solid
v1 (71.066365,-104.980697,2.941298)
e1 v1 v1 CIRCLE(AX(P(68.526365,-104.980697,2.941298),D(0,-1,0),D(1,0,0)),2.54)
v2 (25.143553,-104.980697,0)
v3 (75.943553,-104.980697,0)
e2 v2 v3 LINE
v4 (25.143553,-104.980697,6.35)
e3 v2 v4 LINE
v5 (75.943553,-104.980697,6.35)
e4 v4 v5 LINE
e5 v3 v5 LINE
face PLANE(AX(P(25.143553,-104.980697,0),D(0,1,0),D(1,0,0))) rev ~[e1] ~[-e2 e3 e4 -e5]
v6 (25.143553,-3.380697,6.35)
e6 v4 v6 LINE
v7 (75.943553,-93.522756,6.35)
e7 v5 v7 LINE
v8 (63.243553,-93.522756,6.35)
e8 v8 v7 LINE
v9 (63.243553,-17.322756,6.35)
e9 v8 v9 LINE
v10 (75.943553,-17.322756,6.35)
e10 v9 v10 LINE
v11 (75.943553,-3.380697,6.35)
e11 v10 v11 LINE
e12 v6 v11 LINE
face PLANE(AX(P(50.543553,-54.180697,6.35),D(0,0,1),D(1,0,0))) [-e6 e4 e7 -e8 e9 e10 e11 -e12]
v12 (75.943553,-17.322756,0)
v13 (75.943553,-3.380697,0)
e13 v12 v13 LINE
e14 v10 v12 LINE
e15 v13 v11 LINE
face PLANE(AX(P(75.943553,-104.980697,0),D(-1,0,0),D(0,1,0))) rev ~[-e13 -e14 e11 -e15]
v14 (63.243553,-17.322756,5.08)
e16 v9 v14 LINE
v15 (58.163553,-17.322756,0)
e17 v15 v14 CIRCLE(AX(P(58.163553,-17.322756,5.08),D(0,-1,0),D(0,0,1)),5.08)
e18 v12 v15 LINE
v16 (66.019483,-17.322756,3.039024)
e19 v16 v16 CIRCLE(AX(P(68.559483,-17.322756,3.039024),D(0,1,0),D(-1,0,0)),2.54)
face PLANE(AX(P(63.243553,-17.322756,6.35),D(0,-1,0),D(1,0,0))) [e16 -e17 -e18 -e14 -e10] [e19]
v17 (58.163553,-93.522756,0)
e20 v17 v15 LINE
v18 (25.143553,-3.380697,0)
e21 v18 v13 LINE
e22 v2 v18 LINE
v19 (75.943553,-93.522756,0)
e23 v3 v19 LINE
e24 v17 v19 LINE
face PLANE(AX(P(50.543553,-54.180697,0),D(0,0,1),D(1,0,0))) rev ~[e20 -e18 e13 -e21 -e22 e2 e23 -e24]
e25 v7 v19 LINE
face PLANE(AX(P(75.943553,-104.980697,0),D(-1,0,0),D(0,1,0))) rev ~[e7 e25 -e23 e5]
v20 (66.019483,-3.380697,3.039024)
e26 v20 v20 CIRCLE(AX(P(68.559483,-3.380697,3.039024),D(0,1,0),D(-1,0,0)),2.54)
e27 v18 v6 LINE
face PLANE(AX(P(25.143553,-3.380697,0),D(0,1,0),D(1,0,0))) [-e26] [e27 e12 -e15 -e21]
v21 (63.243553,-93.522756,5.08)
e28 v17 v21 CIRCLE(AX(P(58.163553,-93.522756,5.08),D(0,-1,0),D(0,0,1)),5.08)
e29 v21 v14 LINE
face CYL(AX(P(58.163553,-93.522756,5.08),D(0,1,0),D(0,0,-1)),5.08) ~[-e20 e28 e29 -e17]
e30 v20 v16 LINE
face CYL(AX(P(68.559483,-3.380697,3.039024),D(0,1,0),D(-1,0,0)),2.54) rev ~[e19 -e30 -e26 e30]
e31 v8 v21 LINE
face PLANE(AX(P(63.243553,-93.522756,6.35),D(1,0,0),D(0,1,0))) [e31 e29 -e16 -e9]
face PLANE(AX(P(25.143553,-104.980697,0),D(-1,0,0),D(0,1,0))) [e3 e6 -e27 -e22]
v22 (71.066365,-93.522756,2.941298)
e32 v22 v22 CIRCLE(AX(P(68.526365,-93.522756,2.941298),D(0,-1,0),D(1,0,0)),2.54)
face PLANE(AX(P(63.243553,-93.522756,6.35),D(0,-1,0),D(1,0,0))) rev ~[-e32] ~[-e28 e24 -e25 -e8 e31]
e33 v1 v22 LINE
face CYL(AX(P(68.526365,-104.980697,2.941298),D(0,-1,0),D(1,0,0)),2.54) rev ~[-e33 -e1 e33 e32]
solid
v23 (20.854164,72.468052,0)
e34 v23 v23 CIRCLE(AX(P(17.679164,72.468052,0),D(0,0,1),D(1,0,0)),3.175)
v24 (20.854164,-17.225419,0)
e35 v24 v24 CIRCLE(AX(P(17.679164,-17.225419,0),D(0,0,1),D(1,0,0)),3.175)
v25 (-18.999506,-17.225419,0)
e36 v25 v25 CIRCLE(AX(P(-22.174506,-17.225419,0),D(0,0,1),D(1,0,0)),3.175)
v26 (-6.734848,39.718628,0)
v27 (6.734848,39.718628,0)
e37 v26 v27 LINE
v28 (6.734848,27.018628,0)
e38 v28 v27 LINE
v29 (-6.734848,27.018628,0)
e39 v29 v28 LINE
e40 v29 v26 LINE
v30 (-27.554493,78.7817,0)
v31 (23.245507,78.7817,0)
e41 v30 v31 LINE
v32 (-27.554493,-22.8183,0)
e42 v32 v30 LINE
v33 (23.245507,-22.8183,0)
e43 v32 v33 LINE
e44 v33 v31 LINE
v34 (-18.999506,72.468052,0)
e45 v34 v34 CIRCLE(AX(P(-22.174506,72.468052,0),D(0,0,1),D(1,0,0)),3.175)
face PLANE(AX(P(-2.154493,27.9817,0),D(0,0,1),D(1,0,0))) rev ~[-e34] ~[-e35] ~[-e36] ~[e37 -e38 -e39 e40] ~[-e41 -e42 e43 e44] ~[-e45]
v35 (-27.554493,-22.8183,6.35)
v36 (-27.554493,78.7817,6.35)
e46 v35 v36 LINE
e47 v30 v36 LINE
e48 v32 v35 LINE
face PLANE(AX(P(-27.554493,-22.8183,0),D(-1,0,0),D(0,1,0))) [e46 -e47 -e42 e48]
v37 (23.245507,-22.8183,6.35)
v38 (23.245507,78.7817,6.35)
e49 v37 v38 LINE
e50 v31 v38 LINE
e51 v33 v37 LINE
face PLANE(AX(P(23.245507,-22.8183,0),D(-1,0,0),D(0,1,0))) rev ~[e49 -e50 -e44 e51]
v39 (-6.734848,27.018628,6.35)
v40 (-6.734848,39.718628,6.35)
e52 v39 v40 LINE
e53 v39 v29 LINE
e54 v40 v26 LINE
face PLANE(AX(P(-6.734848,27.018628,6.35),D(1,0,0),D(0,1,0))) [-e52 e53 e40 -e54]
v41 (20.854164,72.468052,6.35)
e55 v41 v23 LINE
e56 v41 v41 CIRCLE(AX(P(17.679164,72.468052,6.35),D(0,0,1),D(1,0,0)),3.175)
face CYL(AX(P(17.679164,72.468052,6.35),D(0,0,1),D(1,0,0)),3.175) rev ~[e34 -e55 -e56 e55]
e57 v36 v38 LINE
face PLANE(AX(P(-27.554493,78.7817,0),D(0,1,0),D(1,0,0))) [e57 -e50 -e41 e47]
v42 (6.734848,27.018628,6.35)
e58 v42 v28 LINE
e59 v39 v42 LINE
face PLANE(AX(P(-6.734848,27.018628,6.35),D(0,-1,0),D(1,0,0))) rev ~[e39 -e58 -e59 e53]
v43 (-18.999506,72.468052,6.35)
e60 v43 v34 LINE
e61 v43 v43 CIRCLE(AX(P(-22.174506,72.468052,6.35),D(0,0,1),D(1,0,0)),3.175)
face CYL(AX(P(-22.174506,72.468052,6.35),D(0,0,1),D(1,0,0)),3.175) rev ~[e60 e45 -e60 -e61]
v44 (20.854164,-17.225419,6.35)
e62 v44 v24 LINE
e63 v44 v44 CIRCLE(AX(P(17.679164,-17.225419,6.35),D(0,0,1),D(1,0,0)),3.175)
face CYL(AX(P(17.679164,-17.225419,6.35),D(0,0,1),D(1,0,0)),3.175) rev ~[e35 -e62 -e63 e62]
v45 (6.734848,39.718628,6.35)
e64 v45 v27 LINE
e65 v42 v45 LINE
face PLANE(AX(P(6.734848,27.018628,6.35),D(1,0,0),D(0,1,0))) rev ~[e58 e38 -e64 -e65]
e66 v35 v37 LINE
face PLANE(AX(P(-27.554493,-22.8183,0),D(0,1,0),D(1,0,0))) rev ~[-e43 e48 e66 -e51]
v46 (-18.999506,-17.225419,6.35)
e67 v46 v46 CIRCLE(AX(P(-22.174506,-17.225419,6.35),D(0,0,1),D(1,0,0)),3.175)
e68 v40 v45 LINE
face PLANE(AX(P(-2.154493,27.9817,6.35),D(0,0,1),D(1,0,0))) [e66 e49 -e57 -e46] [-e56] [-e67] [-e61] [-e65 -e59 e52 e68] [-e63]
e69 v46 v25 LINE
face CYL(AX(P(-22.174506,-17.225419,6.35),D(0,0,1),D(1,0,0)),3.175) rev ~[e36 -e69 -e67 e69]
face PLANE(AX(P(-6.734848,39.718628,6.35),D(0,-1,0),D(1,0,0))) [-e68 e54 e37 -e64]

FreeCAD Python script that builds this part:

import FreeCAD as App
import Part
import Sketcher
from FreeCAD import Vector
Q = App.Units.Quantity


def edges_at(feature, points):
    """Names of the edges that pass closest to the given points."""
    edges = feature.Shape.Edges
    near = lambda p: min(range(len(edges)), key=lambda i: edges[i].distToShape(Part.Vertex(*p))[0])
    return sorted({f"Edge{near(p) + 1}" for p in points})


def add_polygon(sketch, points):
    """Adds a closed chain of lines whose ends are joined by coincident constraints."""
    first, n = sketch.GeometryCount, len(points)
    for a, b in zip(points, points[1:] + points[:1]):
        sketch.addGeometry(Part.LineSegment(App.Vector(*a, 0), App.Vector(*b, 0)), False)
    for i in range(n):
        sketch.addConstraint(Sketcher.Constraint("Coincident", first + i, 2, first + (i + 1) % n, 1))

doc = App.newDocument("Part")
body = doc.addObject("PartDesign::Body", "Body")

# Sketch on XY plane
sketch1 = body.newObject("Sketcher::SketchObject", "Sketch")
sketch1.AttachmentSupport = (doc.getObject("XY_Plane"), [""])
sketch1.MapMode = "FlatFace"
add_polygon(sketch1, [(-27.554493, 78.7817), (-27.554493, -22.8183), (23.245507, -22.8183), (23.245507, 78.7817)])  # lines 0-3
sketch1.addConstraint([
    Sketcher.Constraint("Vertical", 0),
    Sketcher.Constraint("Horizontal", 1),
    Sketcher.Constraint("Vertical", 2),
    Sketcher.Constraint("Horizontal", 3),
    Sketcher.Constraint("DistanceX", 1, 1, 1, 2, Q("2 in")),
    Sketcher.Constraint("DistanceY", 0, 2, 0, 1, Q("4 in")),
    Sketcher.Constraint("DistanceY", 0, 2, -1, 1, Q("22.8183 mm")),
    Sketcher.Constraint("DistanceX", 0, 2, -1, 1, Q("27.554493 mm")),
])
pad1 = body.newObject("PartDesign::Pad", "Pad")
pad1.Profile = sketch1
pad1.Length = Q("0.25 in")

# Sketch on XY plane
sketch2 = body.newObject("Sketcher::SketchObject", "Sketch001")
sketch2.AttachmentSupport = (doc.getObject("XY_Plane"), [""])
sketch2.MapMode = "FlatFace"
sketch2.AttachmentOffset = App.Placement(Vector(0, 0, 0.25 * 25.4), App.Rotation())
sketch2.addGeometry([
    Part.Circle(Vector(-22.174506, 72.468052, 0), Vector(0, 0, 1), 3.175),
    Part.Circle(Vector(-22.174506, -17.225419, 0), Vector(0, 0, 1), 3.175),
    Part.Circle(Vector(17.679164, 72.468052, 0), Vector(0, 0, 1), 3.175),
    Part.Circle(Vector(17.679164, -17.225419, 0), Vector(0, 0, 1), 3.175),
], False)
sketch2.addConstraint([
    Sketcher.Constraint("Equal", 0, 1),
    Sketcher.Constraint("Equal", 1, 2),
    Sketcher.Constraint("Equal", 2, 3),
    Sketcher.Constraint("Horizontal", 0, 3, 2, 3),
    Sketcher.Constraint("Horizontal", 1, 3, 3, 3),
    Sketcher.Constraint("Vertical", 0, 3, 1, 3),
    Sketcher.Constraint("Vertical", 2, 3, 3, 3),
    Sketcher.Constraint("Diameter", 0, Q("0.25 in")),
    Sketcher.Constraint("DistanceY", -1, 1, 0, 3, Q("72.468052 mm")),
    Sketcher.Constraint("DistanceY", 1, 3, -1, 1, Q("17.225419 mm")),
    Sketcher.Constraint("DistanceX", 0, 3, 2, 3, Q("39.85367 mm")),
    Sketcher.Constraint("DistanceX", 0, 3, -1, 1, Q("22.174506 mm")),
])
pocket1 = body.newObject("PartDesign::Pocket", "Pocket")
pocket1.Profile = sketch2
pocket1.Length = Q("1 in")

# Sketch on XY plane
sketch3 = body.newObject("Sketcher::SketchObject", "Sketch002")
sketch3.AttachmentSupport = (doc.getObject("XY_Plane"), [""])
sketch3.MapMode = "FlatFace"
sketch3.AttachmentOffset = App.Placement(Vector(0, 0, 0.25 * 25.4), App.Rotation())
add_polygon(sketch3, [(-6.734848, 39.718628), (-6.734848, 27.018628), (6.734848, 27.018628), (6.734848, 39.718628)])  # lines 0-3
sketch3.addConstraint([
    Sketcher.Constraint("Vertical", 0),
    Sketcher.Constraint("Horizontal", 1),
    Sketcher.Constraint("Vertical", 2),
    Sketcher.Constraint("Horizontal", 3),
    Sketcher.Constraint("DistanceY", 0, 2, 0, 1, Q("0.5 in")),
    Sketcher.Constraint("DistanceX", 1, 1, 1, 2, Q("13.469696 mm")),
    Sketcher.Constraint("DistanceX", 0, 2, -1, 1, Q("6.734848 mm")),
    Sketcher.Constraint("DistanceY", -1, 1, 2, 2, Q("39.718628 mm")),
])
pocket2 = body.newObject("PartDesign::Pocket", "Pocket001")
pocket2.Profile = sketch3
pocket2.Length = Q("1 in")
body2 = doc.addObject("PartDesign::Body", "Body001")

# Sketch on XY plane
sketch4 = body2.newObject("Sketcher::SketchObject", "Sketch003")
sketch4.AttachmentSupport = (doc.getObject("XY_Plane001"), [""])
sketch4.MapMode = "FlatFace"
add_polygon(sketch4, [(25.143553, -3.380697), (25.143553, -104.980697), (75.943553, -104.980697), (75.943553, -3.380697)])  # lines 0-3
sketch4.addConstraint([
    Sketcher.Constraint("Vertical", 0),
    Sketcher.Constraint("Horizontal", 1),
    Sketcher.Constraint("Vertical", 2),
    Sketcher.Constraint("Horizontal", 3),
    Sketcher.Constraint("DistanceX", 1, 1, 1, 2, Q("2 in")),
    Sketcher.Constraint("DistanceY", 0, 2, 0, 1, Q("4 in")),
    Sketcher.Constraint("DistanceX", -1, 1, 0, 2, Q("25.143553 mm")),
    Sketcher.Constraint("DistanceY", 0, 2, -1, 1, Q("104.980697 mm")),
])
pad2 = body2.newObject("PartDesign::Pad", "Pad001")
pad2.Profile = sketch4
pad2.Length = Q("0.25 in")

# Sketch on XY plane
sketch5 = body2.newObject("Sketcher::SketchObject", "Sketch004")
sketch5.AttachmentSupport = (doc.getObject("XY_Plane001"), [""])
sketch5.MapMode = "FlatFace"
sketch5.AttachmentOffset = App.Placement(Vector(0, 0, 0.25 * 25.4), App.Rotation())
add_polygon(sketch5, [(63.243553, -17.322756), (63.243553, -93.522756), (75.943553, -93.522756), (75.943553, -17.322756)])  # lines 0-3
sketch5.addConstraint([
    Sketcher.Constraint("Vertical", 0),
    Sketcher.Constraint("Horizontal", 1),
    Sketcher.Constraint("Vertical", 2),
    Sketcher.Constraint("Horizontal", 3),
    Sketcher.Constraint("DistanceY", 0, 2, 0, 1, Q("3 in")),
    Sketcher.Constraint("DistanceX", 1, 1, 1, 2, Q("0.5 in")),
    Sketcher.Constraint("DistanceX", -1, 1, 0, 2, Q("63.243553 mm")),
    Sketcher.Constraint("DistanceY", 0, 2, -1, 1, Q("93.522756 mm")),
])
pocket3 = body2.newObject("PartDesign::Pocket", "Pocket002")
pocket3.Profile = sketch5
pocket3.Length = Q("1 in")

# Sketch on XZ plane
sketch6 = body2.newObject("Sketcher::SketchObject", "Sketch005")
sketch6.AttachmentSupport = (doc.getObject("XZ_Plane001"), [""])
sketch6.MapMode = "FlatFace"
sketch6.AttachmentOffset = App.Placement(Vector(0, 0, 104.980697), App.Rotation())
sketch6.addGeometry(Part.Circle(Vector(68.526365, 2.941298, 0), Vector(0, 0, 1), 2.54), False)
sketch6.addConstraint([
    Sketcher.Constraint("Diameter", 0, Q("0.2 in")),
    Sketcher.Constraint("DistanceY", -1, 1, 0, 3, Q("2.941298 mm")),
    Sketcher.Constraint("DistanceX", -1, 1, 0, 3, Q("68.526365 mm")),
])
pocket4 = body2.newObject("PartDesign::Pocket", "Pocket003")
pocket4.Profile = sketch6
pocket4.Length = Q("1 in")

# Sketch on XZ plane
sketch7 = body2.newObject("Sketcher::SketchObject", "Sketch006")
sketch7.AttachmentSupport = (doc.getObject("XZ_Plane001"), [""])
sketch7.MapMode = "FlatFace"
sketch7.AttachmentOffset = App.Placement(Vector(0, 0, 3.380697), App.Rotation())
sketch7.addGeometry(Part.Circle(Vector(68.559483, 3.039024, 0), Vector(0, 0, 1), 2.54), False)
sketch7.addConstraint([
    Sketcher.Constraint("Diameter", 0, Q("0.2 in")),
    Sketcher.Constraint("DistanceX", -1, 1, 0, 3, Q("68.559483 mm")),
    Sketcher.Constraint("DistanceY", -1, 1, 0, 3, Q("3.039024 mm")),
])
pocket5 = body2.newObject("PartDesign::Pocket", "Pocket004")
pocket5.Profile = sketch7
pocket5.Length = Q("1 in")
pocket5.Reversed = True
doc.recompute()

fillet = body2.newObject("PartDesign::Fillet", "Fillet")
fillet.Base = (pocket5, edges_at(pocket5, [(63.244, -55.423, 0)]))
fillet.Radius = Q("0.2 in")

doc.recompute()
